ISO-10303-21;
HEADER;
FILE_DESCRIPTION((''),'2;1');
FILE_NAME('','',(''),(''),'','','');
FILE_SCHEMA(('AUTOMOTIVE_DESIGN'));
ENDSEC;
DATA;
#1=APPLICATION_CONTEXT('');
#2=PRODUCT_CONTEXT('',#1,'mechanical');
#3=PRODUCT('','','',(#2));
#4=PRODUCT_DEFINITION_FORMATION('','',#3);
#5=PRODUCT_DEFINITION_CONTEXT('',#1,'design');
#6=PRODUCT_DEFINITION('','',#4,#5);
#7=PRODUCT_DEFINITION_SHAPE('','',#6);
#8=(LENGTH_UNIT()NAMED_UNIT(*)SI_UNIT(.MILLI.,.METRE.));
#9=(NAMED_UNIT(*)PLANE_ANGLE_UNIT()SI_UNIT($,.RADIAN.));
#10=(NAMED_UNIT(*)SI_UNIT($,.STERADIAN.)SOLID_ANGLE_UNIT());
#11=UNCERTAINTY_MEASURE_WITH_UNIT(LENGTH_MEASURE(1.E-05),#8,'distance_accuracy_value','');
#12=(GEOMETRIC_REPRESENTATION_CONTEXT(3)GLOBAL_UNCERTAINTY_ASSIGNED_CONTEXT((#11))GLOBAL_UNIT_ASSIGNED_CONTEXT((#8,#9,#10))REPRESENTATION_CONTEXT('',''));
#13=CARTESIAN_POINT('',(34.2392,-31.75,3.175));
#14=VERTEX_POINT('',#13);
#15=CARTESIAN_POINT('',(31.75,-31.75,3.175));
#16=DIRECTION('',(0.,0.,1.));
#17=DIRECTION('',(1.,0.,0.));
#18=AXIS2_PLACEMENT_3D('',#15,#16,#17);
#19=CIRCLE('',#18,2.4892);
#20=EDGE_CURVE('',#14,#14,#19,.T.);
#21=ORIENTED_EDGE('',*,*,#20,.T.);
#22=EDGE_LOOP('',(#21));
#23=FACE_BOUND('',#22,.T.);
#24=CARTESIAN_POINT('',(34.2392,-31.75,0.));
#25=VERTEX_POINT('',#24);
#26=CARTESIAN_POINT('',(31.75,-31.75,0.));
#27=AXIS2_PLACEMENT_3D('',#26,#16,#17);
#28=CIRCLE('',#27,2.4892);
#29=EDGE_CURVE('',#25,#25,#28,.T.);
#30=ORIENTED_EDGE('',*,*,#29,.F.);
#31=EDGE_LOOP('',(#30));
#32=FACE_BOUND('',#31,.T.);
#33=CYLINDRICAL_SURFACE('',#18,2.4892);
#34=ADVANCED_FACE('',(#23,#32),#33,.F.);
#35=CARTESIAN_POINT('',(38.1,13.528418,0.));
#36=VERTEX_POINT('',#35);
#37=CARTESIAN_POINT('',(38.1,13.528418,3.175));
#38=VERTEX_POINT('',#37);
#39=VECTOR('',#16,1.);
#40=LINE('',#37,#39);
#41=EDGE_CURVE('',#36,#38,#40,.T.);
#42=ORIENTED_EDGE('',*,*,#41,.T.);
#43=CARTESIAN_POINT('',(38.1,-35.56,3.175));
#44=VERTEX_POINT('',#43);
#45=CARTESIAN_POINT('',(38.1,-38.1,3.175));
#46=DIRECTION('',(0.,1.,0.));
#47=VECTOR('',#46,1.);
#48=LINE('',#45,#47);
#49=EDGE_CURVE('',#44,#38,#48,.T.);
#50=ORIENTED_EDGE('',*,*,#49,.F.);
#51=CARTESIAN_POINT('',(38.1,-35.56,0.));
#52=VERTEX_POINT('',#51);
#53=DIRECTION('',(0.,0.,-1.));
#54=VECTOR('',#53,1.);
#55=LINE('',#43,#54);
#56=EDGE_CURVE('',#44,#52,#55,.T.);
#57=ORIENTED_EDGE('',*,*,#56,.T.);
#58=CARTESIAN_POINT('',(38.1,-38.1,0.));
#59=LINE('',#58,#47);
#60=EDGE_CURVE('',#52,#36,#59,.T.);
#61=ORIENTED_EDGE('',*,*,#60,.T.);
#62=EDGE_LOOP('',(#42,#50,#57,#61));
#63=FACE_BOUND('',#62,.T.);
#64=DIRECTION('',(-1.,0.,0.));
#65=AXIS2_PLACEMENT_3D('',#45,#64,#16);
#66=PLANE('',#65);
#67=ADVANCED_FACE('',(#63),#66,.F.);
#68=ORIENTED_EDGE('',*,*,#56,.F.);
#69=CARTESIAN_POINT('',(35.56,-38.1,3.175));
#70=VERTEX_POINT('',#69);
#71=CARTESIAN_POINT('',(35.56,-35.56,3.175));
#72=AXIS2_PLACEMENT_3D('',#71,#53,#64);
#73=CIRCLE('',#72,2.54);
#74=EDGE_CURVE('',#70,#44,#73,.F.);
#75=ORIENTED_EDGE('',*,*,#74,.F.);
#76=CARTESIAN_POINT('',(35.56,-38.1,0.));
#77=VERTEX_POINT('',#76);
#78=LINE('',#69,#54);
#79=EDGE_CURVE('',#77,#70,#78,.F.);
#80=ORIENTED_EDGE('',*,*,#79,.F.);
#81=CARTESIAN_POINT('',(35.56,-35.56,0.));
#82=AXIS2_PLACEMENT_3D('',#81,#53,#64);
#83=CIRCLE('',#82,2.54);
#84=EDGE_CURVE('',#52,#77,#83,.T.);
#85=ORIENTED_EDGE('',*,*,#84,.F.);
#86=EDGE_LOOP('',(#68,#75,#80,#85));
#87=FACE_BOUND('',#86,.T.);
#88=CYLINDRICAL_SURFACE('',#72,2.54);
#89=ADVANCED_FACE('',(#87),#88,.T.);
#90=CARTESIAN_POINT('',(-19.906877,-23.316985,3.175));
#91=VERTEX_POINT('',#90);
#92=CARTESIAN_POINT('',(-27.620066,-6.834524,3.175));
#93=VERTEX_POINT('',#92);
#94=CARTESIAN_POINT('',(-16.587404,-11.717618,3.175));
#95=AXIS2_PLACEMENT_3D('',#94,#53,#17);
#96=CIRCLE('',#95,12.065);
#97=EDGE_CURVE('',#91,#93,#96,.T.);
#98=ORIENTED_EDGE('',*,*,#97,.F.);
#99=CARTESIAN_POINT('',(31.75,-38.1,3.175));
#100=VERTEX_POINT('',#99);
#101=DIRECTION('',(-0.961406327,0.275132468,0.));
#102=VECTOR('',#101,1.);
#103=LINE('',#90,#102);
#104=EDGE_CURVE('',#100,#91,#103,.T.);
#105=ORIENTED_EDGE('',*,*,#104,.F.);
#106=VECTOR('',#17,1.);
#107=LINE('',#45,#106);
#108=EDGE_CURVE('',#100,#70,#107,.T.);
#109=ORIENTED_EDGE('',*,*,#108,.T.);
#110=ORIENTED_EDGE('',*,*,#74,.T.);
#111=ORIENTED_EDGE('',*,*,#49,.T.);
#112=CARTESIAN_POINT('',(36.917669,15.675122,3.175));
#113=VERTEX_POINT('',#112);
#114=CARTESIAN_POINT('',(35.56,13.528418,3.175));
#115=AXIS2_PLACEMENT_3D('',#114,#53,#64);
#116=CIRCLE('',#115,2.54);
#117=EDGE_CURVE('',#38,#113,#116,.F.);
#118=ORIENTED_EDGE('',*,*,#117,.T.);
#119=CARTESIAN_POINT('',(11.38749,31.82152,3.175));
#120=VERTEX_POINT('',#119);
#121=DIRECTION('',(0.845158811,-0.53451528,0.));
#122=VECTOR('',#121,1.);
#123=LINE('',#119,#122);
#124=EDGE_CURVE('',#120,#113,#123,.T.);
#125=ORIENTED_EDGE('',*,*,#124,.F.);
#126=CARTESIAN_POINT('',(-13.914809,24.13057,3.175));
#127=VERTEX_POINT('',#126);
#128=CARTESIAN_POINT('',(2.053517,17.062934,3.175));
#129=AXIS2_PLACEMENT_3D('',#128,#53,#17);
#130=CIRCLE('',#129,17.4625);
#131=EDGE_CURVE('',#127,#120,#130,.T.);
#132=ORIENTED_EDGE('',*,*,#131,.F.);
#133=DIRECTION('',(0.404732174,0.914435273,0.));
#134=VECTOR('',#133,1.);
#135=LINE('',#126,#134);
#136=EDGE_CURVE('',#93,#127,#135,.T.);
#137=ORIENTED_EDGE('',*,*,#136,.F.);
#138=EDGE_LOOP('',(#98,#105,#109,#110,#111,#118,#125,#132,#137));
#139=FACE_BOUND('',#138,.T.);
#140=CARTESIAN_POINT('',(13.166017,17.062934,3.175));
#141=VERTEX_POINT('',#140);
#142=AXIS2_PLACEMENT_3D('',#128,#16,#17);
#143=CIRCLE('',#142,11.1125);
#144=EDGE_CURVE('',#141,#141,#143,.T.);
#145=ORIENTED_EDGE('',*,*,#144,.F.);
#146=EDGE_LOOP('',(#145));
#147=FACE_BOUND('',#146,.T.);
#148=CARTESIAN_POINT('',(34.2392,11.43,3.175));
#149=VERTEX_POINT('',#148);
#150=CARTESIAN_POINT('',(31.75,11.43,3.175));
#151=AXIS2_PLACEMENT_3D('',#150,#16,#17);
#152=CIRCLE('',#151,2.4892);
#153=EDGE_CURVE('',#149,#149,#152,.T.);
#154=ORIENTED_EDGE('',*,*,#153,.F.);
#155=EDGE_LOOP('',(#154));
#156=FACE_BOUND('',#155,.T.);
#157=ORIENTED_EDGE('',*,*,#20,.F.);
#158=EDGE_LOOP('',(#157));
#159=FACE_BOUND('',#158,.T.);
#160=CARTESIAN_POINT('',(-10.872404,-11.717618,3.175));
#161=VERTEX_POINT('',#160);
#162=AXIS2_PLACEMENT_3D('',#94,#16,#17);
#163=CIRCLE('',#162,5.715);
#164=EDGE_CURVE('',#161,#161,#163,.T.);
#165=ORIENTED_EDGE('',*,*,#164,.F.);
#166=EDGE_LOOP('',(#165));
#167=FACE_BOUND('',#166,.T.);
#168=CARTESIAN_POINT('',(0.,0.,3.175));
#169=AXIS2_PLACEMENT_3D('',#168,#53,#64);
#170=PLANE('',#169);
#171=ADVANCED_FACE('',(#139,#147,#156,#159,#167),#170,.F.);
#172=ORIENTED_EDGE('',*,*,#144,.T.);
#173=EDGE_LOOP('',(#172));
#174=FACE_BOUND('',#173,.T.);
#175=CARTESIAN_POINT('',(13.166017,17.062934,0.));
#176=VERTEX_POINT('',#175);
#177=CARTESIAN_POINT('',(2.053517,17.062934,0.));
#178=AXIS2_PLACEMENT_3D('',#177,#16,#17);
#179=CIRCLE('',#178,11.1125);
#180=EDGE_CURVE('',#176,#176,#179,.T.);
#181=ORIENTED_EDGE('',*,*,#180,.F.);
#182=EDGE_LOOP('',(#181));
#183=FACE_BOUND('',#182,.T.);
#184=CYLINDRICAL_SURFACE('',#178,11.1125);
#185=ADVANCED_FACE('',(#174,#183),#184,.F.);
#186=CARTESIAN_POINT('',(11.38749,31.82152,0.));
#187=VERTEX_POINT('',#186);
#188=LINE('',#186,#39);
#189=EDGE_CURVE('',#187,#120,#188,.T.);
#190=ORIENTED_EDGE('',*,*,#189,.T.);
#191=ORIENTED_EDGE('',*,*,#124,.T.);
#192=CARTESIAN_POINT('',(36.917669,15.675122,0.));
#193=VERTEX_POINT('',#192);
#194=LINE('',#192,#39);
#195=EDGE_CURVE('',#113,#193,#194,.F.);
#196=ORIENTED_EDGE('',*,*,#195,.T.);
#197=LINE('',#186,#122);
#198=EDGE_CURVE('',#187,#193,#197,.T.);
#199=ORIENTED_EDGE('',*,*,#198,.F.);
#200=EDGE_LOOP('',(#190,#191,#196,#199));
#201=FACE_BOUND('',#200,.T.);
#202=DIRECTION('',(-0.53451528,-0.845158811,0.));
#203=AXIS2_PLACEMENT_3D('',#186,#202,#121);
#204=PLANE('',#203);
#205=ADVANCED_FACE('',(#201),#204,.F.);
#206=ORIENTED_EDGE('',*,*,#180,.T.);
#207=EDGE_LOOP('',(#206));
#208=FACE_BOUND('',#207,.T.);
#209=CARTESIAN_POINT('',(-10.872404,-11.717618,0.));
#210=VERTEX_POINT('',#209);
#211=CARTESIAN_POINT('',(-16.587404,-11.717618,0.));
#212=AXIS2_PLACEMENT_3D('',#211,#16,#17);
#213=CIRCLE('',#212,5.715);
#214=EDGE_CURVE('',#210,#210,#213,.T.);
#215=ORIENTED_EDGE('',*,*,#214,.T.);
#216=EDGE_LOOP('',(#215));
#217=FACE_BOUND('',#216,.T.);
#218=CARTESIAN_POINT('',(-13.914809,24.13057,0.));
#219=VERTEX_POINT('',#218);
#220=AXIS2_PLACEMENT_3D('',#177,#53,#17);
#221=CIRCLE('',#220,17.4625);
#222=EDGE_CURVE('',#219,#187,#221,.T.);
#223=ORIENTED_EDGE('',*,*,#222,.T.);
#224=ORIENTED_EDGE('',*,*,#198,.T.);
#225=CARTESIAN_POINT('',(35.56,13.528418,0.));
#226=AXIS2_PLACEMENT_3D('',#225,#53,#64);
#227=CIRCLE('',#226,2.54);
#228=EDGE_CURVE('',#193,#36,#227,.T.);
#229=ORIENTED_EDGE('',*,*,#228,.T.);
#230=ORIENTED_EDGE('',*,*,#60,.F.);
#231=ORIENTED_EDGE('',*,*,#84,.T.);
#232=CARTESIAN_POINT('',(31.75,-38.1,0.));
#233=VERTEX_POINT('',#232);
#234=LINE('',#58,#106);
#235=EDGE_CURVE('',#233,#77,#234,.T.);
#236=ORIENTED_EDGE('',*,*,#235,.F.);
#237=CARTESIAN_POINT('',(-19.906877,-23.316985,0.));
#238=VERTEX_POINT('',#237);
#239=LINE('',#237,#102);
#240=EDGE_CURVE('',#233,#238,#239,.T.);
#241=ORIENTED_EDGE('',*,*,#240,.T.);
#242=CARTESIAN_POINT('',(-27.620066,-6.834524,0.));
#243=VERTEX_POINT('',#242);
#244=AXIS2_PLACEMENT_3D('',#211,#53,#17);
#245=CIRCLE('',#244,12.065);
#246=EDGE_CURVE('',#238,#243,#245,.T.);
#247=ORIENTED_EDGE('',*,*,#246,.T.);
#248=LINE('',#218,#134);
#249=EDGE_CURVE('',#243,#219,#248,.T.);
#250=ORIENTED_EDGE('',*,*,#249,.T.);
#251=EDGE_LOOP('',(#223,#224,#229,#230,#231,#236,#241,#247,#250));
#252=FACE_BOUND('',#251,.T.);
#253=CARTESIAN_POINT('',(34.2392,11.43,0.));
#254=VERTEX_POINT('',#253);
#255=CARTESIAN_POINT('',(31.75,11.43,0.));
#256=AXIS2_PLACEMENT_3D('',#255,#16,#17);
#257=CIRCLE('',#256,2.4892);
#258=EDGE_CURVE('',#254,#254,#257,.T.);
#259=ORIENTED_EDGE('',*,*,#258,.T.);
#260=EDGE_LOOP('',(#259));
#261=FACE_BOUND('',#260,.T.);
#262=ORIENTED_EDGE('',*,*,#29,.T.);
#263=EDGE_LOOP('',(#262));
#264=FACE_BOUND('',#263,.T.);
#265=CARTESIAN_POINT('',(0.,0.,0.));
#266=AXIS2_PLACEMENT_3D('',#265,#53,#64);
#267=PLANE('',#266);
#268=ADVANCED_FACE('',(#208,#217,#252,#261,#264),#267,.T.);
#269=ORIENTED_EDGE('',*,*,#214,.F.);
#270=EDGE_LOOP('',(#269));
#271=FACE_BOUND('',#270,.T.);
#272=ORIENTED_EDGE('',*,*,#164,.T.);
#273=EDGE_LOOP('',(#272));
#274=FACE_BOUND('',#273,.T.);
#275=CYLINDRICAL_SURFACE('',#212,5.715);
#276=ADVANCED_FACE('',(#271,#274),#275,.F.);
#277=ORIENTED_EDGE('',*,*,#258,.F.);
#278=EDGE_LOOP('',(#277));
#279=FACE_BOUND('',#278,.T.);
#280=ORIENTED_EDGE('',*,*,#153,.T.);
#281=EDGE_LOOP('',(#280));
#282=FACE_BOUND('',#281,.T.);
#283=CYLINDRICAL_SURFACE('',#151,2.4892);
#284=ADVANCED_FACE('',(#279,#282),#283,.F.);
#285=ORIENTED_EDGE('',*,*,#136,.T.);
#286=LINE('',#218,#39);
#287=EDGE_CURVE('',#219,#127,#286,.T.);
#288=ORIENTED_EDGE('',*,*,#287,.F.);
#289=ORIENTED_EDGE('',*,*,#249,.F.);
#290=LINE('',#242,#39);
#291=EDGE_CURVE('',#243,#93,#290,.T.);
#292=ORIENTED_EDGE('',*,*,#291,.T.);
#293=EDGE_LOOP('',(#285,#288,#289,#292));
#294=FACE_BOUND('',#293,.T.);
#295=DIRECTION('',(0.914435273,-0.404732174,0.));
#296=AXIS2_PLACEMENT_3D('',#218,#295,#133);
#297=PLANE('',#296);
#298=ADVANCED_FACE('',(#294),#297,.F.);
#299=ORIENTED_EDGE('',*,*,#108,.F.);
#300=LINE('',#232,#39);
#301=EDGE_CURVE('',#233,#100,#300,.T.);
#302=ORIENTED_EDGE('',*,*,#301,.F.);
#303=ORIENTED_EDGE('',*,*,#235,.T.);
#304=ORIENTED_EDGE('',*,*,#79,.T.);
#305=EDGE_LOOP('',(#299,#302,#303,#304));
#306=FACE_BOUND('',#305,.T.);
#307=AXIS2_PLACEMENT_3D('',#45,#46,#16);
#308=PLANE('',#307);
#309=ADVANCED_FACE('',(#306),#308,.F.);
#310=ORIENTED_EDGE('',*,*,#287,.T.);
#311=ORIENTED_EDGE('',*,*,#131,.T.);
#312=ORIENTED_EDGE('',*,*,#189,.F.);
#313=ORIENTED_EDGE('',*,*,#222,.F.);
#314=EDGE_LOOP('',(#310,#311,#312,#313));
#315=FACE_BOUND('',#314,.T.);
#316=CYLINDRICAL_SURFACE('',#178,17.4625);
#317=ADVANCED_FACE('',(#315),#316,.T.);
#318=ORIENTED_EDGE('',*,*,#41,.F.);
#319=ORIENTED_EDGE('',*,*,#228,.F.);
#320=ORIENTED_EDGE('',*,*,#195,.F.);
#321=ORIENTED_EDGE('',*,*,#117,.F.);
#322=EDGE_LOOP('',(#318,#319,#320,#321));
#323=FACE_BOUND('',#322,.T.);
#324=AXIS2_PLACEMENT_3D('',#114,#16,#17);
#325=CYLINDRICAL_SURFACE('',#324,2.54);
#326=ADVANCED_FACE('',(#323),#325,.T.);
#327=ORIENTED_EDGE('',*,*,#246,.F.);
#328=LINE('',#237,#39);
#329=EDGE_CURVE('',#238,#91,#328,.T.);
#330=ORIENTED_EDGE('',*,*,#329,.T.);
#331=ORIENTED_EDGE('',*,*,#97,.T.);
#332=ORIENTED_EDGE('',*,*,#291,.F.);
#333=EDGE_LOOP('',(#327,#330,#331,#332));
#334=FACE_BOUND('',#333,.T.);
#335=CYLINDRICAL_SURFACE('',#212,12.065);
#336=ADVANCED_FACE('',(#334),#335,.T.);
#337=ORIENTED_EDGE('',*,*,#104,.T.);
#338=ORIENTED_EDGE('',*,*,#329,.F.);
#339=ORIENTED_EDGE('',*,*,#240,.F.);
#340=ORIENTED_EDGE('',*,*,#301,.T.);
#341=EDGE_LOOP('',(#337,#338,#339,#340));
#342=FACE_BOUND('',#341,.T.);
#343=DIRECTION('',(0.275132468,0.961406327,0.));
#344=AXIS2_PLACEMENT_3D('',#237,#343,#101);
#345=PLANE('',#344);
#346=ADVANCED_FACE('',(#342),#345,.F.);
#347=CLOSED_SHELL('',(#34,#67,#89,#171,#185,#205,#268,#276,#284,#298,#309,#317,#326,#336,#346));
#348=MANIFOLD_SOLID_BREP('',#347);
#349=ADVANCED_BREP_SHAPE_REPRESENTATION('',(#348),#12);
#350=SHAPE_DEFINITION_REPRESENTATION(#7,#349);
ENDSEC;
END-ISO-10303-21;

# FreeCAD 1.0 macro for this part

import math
import FreeCAD as App
import Part
import Sketcher
Q = App.Units.Quantity


def edges_at(feature, points):
    """Names of the edges that pass closest to the given points."""
    edges = feature.Shape.Edges
    near = lambda p: min(range(len(edges)), key=lambda i: edges[i].distToShape(Part.Vertex(*p))[0])
    return sorted({f"Edge{near(p) + 1}" for p in points})


def add_polygon(sketch, points):
    """Adds a closed chain of lines whose ends are joined by coincident constraints."""
    first, n = sketch.GeometryCount, len(points)
    for a, b in zip(points, points[1:] + points[:1]):
        sketch.addGeometry(Part.LineSegment(App.Vector(*a, 0), App.Vector(*b, 0)), False)
    for i in range(n):
        sketch.addConstraint(Sketcher.Constraint("Coincident", first + i, 2, first + (i + 1) % n, 1))

doc = App.newDocument("Part")
body = doc.addObject("PartDesign::Body", "Body")

# Sketch on XY plane
sketch1 = doc.addObject("Sketcher::SketchObject", "Sketch")
body.addObject(sketch1)
sketch1.AttachmentSupport = (doc.XY_Plane, [""])
sketch1.MapMode = "FlatFace"
add_polygon(sketch1, [(-38, -38), (38, -38), (38, 38), (-38, 38)])  # lines 0-3
sketch1.addConstraint(Sketcher.Constraint("Horizontal", 0))
sketch1.addConstraint(Sketcher.Constraint("Vertical", 1))
sketch1.addConstraint(Sketcher.Constraint("Horizontal", 2))
sketch1.addConstraint(Sketcher.Constraint("Vertical", 3))
sketch1.addConstraint(Sketcher.Constraint("Symmetric", 0, 2, 2, 2, -1, 1))
sketch1.addConstraint(Sketcher.Constraint("Equal", 2, 1))
sketch1.addConstraint(Sketcher.Constraint("DistanceX", 0, 1, 0, 2, Q("3 in")))
pad1 = doc.addObject("PartDesign::Pad", "Pad")
body.addObject(pad1)
pad1.Profile = sketch1
pad1.Length = Q("0.125 in")

# Sketch on XY plane
sketch2 = doc.addObject("Sketcher::SketchObject", "Sketch001")
body.addObject(sketch2)
sketch2.AttachmentSupport = (doc.XY_Plane, [""])
sketch2.MapMode = "FlatFace"
sketch2.AttachmentOffset = App.Placement(App.Vector(0, 0, 0.125 * 25.4), App.Rotation())
sketch2.addGeometry(Part.Circle(App.Vector(31.8, -31.8, 0), App.Vector(0, 0, 1), 2.5), False)
sketch2.addGeometry(Part.Circle(App.Vector(31.8, 11.4, 0), App.Vector(0, 0, 1), 2.5), False)
sketch2.addConstraint(Sketcher.Constraint("Equal", 0, 1))
sketch2.addConstraint(Sketcher.Constraint("Vertical", 0, 3, 1, 3))
sketch2.addConstraint(Sketcher.Constraint("Diameter", 0, Q("0.196 in")))
sketch2.addConstraint(Sketcher.Constraint("DistanceY", 0, 3, 1, 3, Q("1.7 in")))
sketch2.addConstraint(Sketcher.Constraint("DistanceX", -1, 1, 0, 3, Q("1.25 in")))
sketch2.addConstraint(Sketcher.Constraint("DistanceY", 0, 3, -1, 1, Q("1.25 in")))
doc.recompute()
hole = doc.addObject("PartDesign::Hole", "Hole")
body.addObject(hole)
hole.Profile = sketch2
hole.ThreadType = "None"
hole.Diameter = Q("0.196 in")
hole.DepthType = "ThroughAll"

# Sketch on XY plane
sketch3 = doc.addObject("Sketcher::SketchObject", "Sketch002")
body.addObject(sketch3)
sketch3.AttachmentSupport = (doc.XY_Plane, [""])
sketch3.MapMode = "FlatFace"
sketch3.AttachmentOffset = App.Placement(App.Vector(0, 0, 0.125 * 25.4), App.Rotation())
sketch3.addGeometry(Part.Circle(App.Vector(-17, -12, 0), App.Vector(0, 0, 1), 6), False)
sketch3.addGeometry(Part.Circle(App.Vector(2, 17, 0), App.Vector(0, 0, 1), 11), False)
sketch3.addConstraint(Sketcher.Constraint("Diameter", 0, Q("0.45 in")))
sketch3.addConstraint(Sketcher.Constraint("Diameter", 1, Q("0.875 in")))
sketch3.addConstraint(Sketcher.Constraint("DistanceX", 0, 3, 1, 3, Q("18.640921 mm")))
sketch3.addConstraint(Sketcher.Constraint("DistanceX", 0, 3, -1, 1, Q("16.587404 mm")))
sketch3.addConstraint(Sketcher.Constraint("DistanceY", 0, 3, -1, 1, Q("11.717618 mm")))
sketch3.addConstraint(Sketcher.Constraint("DistanceY", -1, 1, 1, 3, Q("17.062934 mm")))
pocket1 = doc.addObject("PartDesign::Pocket", "Pocket")
body.addObject(pocket1)
pocket1.Profile = sketch3
pocket1.Length = Q("0.125 in")

# Sketch on XY plane
sketch4 = doc.addObject("Sketcher::SketchObject", "Sketch003")
body.addObject(sketch4)
sketch4.AttachmentSupport = (doc.XY_Plane, [""])
sketch4.MapMode = "FlatFace"
sketch4.AttachmentOffset = App.Placement(App.Vector(0, 0, 0.125 * 25.4), App.Rotation())
sketch4.addGeometry(Part.LineSegment(App.Vector(11, 32, 0), App.Vector(38, 15, 0)), False)
sketch4.addGeometry(Part.LineSegment(App.Vector(38, 15, 0), App.Vector(38, 38, 0)), False)
sketch4.addGeometry(Part.LineSegment(App.Vector(38, 38, 0), App.Vector(-38, 38, 0)), False)
sketch4.addGeometry(Part.LineSegment(App.Vector(-38, 38, 0), App.Vector(-38, -38, 0)), False)
sketch4.addGeometry(Part.LineSegment(App.Vector(-38, -38, 0), App.Vector(32, -38, 0)), False)
sketch4.addGeometry(Part.LineSegment(App.Vector(32, -38, 0), App.Vector(-20, -23, 0)), False)
sketch4.addGeometry(Part.ArcOfCircle(Part.Circle(App.Vector(-17, -12, 0), App.Vector(0, 0, 1), 12), math.radians(156), math.radians(254)), False)
sketch4.addGeometry(Part.LineSegment(App.Vector(-28, -7, 0), App.Vector(-14, 24, 0)), False)
sketch4.addGeometry(Part.ArcOfCircle(Part.Circle(App.Vector(2, 17, 0), App.Vector(0, 0, 1), 17), math.radians(58), math.radians(156)), False)
sketch4.addConstraint(Sketcher.Constraint("Coincident", 0, 2, 1, 1))
sketch4.addConstraint(Sketcher.Constraint("Coincident", 1, 2, 2, 1))
sketch4.addConstraint(Sketcher.Constraint("Coincident", 2, 2, 3, 1))
sketch4.addConstraint(Sketcher.Constraint("Coincident", 3, 2, 4, 1))
sketch4.addConstraint(Sketcher.Constraint("Coincident", 4, 2, 5, 1))
sketch4.addConstraint(Sketcher.Constraint("Tangent", 5, 2, 6, 2))
sketch4.addConstraint(Sketcher.Constraint("Tangent", 6, 1, 7, 1))
sketch4.addConstraint(Sketcher.Constraint("Tangent", 7, 2, 8, 2))
sketch4.addConstraint(Sketcher.Constraint("Tangent", 8, 1, 0, 1))
sketch4.addConstraint(Sketcher.Constraint("Vertical", 1))
sketch4.addConstraint(Sketcher.Constraint("Horizontal", 2))
sketch4.addConstraint(Sketcher.Constraint("Vertical", 3))
sketch4.addConstraint(Sketcher.Constraint("Horizontal", 4))
sketch4.addConstraint(Sketcher.Constraint("Symmetric", 1, 2, 3, 2, -1, 1))
sketch4.addConstraint(Sketcher.Constraint("Equal", 2, 3))
sketch4.addConstraint(Sketcher.Constraint("DistanceX", 2, 2, 2, 1, Q("3 in")))
sketch4.addConstraint(Sketcher.Constraint("Radius", 6, Q("0.475 in")))
sketch4.addConstraint(Sketcher.Constraint("Radius", 8, Q("0.6875 in")))
sketch4.addConstraint(Sketcher.Constraint("DistanceX", 4, 1, 4, 2, Q("2.75 in")))
sketch4.addConstraint(Sketcher.Constraint("Distance", 0, Q("31.606498 mm")))
sketch4.addConstraint(Sketcher.Constraint("DistanceX", 7, 2, 8, 1, Q("25.302299 mm")))
sketch4.addConstraint(Sketcher.Constraint("DistanceY", 1, 1, 1, 2, Q("23.172636 mm")))
sketch4.addConstraint(Sketcher.Constraint("DistanceX", 7, 2, -1, 1, Q("13.914809 mm")))
sketch4.addConstraint(Sketcher.Constraint("DistanceX", 6, 3, 8, 3, Q("18.640921 mm")))
pocket2 = doc.addObject("PartDesign::Pocket", "Pocket001")
body.addObject(pocket2)
pocket2.Profile = sketch4
pocket2.Length = Q("0.125 in")
doc.recompute()

fillet = doc.addObject("PartDesign::Fillet", "Fillet")
body.addObject(fillet)
fillet.Base = (pocket2, edges_at(pocket2, [(38.1, 14.927, 1.587), (38.1, -38.1, 1.587)]))
fillet.Radius = Q("0.1 in")

doc.recompute()
